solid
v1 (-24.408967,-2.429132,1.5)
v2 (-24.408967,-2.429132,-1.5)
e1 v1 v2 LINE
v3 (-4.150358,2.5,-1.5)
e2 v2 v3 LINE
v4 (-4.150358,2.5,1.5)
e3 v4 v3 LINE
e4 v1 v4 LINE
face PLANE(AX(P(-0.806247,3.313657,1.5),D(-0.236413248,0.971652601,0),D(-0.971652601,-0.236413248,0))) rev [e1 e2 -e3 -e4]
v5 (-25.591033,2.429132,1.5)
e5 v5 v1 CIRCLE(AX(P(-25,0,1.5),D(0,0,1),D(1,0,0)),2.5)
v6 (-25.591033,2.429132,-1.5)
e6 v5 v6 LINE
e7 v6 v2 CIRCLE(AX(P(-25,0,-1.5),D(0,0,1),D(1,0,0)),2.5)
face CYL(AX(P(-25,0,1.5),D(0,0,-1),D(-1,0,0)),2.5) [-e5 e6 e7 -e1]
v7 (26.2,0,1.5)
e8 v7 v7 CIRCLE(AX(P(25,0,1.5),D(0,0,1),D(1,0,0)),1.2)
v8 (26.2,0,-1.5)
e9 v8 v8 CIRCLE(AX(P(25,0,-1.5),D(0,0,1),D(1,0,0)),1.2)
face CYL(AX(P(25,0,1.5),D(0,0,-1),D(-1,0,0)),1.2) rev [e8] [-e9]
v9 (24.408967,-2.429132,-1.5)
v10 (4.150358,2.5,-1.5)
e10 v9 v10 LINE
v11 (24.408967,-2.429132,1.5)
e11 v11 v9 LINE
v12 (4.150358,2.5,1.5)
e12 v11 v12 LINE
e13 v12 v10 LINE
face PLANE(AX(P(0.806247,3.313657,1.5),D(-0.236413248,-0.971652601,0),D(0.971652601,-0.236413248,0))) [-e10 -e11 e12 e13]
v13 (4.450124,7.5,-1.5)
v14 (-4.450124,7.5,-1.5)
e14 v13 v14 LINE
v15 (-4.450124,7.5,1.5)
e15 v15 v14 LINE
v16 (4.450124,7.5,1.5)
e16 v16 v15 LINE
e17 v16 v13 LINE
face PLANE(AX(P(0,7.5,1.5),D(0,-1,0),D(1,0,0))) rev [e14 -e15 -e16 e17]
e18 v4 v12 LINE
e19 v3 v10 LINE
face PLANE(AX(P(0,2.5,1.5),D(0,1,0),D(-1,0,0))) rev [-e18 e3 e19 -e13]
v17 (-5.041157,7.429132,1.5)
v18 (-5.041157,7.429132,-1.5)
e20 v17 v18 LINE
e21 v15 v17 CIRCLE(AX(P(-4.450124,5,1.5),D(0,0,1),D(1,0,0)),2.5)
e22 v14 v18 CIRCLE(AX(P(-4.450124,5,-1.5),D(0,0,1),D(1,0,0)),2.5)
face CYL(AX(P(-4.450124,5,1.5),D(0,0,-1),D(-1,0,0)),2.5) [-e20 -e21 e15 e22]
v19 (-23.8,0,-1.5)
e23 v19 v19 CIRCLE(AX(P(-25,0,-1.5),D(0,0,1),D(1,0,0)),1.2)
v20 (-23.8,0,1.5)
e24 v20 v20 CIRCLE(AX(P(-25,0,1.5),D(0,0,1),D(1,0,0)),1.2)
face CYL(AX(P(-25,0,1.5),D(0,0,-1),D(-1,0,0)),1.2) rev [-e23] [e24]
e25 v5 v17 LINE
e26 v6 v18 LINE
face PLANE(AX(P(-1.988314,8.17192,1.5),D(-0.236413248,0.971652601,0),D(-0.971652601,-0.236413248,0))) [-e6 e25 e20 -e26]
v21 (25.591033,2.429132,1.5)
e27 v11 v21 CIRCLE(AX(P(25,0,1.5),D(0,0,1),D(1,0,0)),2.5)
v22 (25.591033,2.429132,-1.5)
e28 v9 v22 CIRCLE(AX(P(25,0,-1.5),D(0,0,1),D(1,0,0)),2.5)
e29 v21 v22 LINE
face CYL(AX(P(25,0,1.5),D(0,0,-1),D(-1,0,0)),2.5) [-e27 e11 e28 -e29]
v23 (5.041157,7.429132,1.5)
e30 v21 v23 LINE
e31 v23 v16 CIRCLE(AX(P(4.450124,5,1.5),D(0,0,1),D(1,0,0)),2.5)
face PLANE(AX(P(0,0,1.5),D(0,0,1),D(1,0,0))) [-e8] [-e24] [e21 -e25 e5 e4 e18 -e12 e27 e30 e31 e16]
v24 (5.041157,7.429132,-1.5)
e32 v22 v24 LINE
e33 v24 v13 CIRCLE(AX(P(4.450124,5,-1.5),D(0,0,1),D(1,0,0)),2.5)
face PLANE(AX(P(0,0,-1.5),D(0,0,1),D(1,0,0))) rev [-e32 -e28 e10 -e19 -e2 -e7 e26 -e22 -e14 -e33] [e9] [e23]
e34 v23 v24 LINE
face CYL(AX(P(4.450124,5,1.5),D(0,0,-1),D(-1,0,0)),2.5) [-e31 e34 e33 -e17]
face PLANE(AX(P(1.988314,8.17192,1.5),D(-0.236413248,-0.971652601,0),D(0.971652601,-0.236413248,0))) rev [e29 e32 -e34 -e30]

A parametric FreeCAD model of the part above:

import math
import FreeCAD as App
import Part
import Sketcher
from FreeCAD import Vector
Q = App.Units.Quantity

doc = App.newDocument("Part")
params = doc.addObject("Spreadsheet::Sheet", "Params")
for row, (alias, value) in enumerate([
    ("sketch1_diameter", "2.4 mm"),
    ("sketch1_radius", "2.5 mm"),
    ("pad1_length", "3 mm"),
], start=1):
    params.set(f"A{row}", alias)
    params.set(f"B{row}", "=" + value)
    params.setAlias(f"B{row}", alias)

body = doc.addObject("PartDesign::Body", "Body")

sketch1 = body.newObject("Sketcher::SketchObject", "Sketch")
sketch1.AttachmentSupport = (doc.getObject("XY_Plane"), [""])
sketch1.MapMode = "FlatFace"
sketch1.addGeometry([
    Part.LineSegment(Vector(-24.408967, -2.429132, 0), Vector(-4.150358, 2.5, 0)),
    Part.LineSegment(Vector(-4.150358, 2.5, 0), Vector(4.150358, 2.5, 0)),
    Part.LineSegment(Vector(4.150358, 2.5, 0), Vector(24.408967, -2.429132, 0)),
    Part.ArcOfCircle(Part.Circle(Vector(25, 0, 0), Vector(0, 0, 1), 2.5), math.radians(-103.674944), math.radians(76.325056)),
    Part.LineSegment(Vector(25.591033, 2.429132, 0), Vector(5.041157, 7.429132, 0)),
    Part.ArcOfCircle(Part.Circle(Vector(4.450124, 5, 0), Vector(0, 0, 1), 2.5), math.radians(76.325056), math.radians(90)),
    Part.LineSegment(Vector(4.450124, 7.5, 0), Vector(-4.450124, 7.5, 0)),
    Part.ArcOfCircle(Part.Circle(Vector(-4.450124, 5, 0), Vector(0, 0, 1), 2.5), math.radians(90), math.radians(103.674944)),
    Part.LineSegment(Vector(-5.041157, 7.429132, 0), Vector(-25.591033, 2.429132, 0)),
    Part.ArcOfCircle(Part.Circle(Vector(-25, 0, 0), Vector(0, 0, 1), 2.5), math.radians(103.674944), math.radians(283.674944)),
    Part.Circle(Vector(-25, 0, 0), Vector(0, 0, 1), 1.2),
    Part.Circle(Vector(25, 0, 0), Vector(0, 0, 1), 1.2),
], False)
sketch1.addConstraint([
    Sketcher.Constraint("Coincident", 0, 2, 1, 1),
    Sketcher.Constraint("Coincident", 1, 2, 2, 1),
    Sketcher.Constraint("Tangent", 2, 2, 3, 1),
    Sketcher.Constraint("Tangent", 3, 2, 4, 1),
    Sketcher.Constraint("Tangent", 4, 2, 5, 1),
    Sketcher.Constraint("Tangent", 5, 2, 6, 1),
    Sketcher.Constraint("Tangent", 6, 2, 7, 1),
    Sketcher.Constraint("Tangent", 7, 2, 8, 1),
    Sketcher.Constraint("Tangent", 8, 2, 9, 1),
    Sketcher.Constraint("Tangent", 9, 2, 0, 1),
    Sketcher.Constraint("Horizontal", 1),
    Sketcher.Constraint("Horizontal", 6),
    Sketcher.Constraint("Coincident", 10, 3, 9, 3),
    Sketcher.Constraint("Coincident", 11, 3, 3, 3),
    Sketcher.Constraint("Equal", 3, 5),
    Sketcher.Constraint("Equal", 5, 7),
    Sketcher.Constraint("Equal", 7, 9),
    Sketcher.Constraint("Equal", 10, 11),
    Sketcher.Constraint("Symmetric", 3, 3, 9, 3, -1, 1),
    Sketcher.Constraint("Symmetric", 4, 2, 7, 2, -2),
    Sketcher.Constraint("Parallel", 2, 4),
    Sketcher.Constraint("Parallel", 0, 8),
    Sketcher.Constraint("Diameter", 10, Q("2.4 mm")),
    Sketcher.Constraint("Radius", 3, Q("2.5 mm")),
    Sketcher.Constraint("DistanceX", -1, 1, 3, 3, Q("25 mm")),
    Sketcher.Constraint("DistanceY", -1, 1, 5, 3, Q("5 mm")),
    Sketcher.Constraint("DistanceY", 1, 2, 5, 2, Q("5 mm")),
    Sketcher.Constraint("DistanceX", 1, 2, 4, 2, Q("0.890798 mm")),
])
sketch1.setExpression("Constraints[22]", "Params.sketch1_diameter")
sketch1.setExpression("Constraints[23]", "Params.sketch1_radius")
pad1 = body.newObject("PartDesign::Pad", "Pad")
pad1.Profile = sketch1
pad1.setExpression("Length", "Params.pad1_length")
pad1.Midplane = True

doc.recompute()
